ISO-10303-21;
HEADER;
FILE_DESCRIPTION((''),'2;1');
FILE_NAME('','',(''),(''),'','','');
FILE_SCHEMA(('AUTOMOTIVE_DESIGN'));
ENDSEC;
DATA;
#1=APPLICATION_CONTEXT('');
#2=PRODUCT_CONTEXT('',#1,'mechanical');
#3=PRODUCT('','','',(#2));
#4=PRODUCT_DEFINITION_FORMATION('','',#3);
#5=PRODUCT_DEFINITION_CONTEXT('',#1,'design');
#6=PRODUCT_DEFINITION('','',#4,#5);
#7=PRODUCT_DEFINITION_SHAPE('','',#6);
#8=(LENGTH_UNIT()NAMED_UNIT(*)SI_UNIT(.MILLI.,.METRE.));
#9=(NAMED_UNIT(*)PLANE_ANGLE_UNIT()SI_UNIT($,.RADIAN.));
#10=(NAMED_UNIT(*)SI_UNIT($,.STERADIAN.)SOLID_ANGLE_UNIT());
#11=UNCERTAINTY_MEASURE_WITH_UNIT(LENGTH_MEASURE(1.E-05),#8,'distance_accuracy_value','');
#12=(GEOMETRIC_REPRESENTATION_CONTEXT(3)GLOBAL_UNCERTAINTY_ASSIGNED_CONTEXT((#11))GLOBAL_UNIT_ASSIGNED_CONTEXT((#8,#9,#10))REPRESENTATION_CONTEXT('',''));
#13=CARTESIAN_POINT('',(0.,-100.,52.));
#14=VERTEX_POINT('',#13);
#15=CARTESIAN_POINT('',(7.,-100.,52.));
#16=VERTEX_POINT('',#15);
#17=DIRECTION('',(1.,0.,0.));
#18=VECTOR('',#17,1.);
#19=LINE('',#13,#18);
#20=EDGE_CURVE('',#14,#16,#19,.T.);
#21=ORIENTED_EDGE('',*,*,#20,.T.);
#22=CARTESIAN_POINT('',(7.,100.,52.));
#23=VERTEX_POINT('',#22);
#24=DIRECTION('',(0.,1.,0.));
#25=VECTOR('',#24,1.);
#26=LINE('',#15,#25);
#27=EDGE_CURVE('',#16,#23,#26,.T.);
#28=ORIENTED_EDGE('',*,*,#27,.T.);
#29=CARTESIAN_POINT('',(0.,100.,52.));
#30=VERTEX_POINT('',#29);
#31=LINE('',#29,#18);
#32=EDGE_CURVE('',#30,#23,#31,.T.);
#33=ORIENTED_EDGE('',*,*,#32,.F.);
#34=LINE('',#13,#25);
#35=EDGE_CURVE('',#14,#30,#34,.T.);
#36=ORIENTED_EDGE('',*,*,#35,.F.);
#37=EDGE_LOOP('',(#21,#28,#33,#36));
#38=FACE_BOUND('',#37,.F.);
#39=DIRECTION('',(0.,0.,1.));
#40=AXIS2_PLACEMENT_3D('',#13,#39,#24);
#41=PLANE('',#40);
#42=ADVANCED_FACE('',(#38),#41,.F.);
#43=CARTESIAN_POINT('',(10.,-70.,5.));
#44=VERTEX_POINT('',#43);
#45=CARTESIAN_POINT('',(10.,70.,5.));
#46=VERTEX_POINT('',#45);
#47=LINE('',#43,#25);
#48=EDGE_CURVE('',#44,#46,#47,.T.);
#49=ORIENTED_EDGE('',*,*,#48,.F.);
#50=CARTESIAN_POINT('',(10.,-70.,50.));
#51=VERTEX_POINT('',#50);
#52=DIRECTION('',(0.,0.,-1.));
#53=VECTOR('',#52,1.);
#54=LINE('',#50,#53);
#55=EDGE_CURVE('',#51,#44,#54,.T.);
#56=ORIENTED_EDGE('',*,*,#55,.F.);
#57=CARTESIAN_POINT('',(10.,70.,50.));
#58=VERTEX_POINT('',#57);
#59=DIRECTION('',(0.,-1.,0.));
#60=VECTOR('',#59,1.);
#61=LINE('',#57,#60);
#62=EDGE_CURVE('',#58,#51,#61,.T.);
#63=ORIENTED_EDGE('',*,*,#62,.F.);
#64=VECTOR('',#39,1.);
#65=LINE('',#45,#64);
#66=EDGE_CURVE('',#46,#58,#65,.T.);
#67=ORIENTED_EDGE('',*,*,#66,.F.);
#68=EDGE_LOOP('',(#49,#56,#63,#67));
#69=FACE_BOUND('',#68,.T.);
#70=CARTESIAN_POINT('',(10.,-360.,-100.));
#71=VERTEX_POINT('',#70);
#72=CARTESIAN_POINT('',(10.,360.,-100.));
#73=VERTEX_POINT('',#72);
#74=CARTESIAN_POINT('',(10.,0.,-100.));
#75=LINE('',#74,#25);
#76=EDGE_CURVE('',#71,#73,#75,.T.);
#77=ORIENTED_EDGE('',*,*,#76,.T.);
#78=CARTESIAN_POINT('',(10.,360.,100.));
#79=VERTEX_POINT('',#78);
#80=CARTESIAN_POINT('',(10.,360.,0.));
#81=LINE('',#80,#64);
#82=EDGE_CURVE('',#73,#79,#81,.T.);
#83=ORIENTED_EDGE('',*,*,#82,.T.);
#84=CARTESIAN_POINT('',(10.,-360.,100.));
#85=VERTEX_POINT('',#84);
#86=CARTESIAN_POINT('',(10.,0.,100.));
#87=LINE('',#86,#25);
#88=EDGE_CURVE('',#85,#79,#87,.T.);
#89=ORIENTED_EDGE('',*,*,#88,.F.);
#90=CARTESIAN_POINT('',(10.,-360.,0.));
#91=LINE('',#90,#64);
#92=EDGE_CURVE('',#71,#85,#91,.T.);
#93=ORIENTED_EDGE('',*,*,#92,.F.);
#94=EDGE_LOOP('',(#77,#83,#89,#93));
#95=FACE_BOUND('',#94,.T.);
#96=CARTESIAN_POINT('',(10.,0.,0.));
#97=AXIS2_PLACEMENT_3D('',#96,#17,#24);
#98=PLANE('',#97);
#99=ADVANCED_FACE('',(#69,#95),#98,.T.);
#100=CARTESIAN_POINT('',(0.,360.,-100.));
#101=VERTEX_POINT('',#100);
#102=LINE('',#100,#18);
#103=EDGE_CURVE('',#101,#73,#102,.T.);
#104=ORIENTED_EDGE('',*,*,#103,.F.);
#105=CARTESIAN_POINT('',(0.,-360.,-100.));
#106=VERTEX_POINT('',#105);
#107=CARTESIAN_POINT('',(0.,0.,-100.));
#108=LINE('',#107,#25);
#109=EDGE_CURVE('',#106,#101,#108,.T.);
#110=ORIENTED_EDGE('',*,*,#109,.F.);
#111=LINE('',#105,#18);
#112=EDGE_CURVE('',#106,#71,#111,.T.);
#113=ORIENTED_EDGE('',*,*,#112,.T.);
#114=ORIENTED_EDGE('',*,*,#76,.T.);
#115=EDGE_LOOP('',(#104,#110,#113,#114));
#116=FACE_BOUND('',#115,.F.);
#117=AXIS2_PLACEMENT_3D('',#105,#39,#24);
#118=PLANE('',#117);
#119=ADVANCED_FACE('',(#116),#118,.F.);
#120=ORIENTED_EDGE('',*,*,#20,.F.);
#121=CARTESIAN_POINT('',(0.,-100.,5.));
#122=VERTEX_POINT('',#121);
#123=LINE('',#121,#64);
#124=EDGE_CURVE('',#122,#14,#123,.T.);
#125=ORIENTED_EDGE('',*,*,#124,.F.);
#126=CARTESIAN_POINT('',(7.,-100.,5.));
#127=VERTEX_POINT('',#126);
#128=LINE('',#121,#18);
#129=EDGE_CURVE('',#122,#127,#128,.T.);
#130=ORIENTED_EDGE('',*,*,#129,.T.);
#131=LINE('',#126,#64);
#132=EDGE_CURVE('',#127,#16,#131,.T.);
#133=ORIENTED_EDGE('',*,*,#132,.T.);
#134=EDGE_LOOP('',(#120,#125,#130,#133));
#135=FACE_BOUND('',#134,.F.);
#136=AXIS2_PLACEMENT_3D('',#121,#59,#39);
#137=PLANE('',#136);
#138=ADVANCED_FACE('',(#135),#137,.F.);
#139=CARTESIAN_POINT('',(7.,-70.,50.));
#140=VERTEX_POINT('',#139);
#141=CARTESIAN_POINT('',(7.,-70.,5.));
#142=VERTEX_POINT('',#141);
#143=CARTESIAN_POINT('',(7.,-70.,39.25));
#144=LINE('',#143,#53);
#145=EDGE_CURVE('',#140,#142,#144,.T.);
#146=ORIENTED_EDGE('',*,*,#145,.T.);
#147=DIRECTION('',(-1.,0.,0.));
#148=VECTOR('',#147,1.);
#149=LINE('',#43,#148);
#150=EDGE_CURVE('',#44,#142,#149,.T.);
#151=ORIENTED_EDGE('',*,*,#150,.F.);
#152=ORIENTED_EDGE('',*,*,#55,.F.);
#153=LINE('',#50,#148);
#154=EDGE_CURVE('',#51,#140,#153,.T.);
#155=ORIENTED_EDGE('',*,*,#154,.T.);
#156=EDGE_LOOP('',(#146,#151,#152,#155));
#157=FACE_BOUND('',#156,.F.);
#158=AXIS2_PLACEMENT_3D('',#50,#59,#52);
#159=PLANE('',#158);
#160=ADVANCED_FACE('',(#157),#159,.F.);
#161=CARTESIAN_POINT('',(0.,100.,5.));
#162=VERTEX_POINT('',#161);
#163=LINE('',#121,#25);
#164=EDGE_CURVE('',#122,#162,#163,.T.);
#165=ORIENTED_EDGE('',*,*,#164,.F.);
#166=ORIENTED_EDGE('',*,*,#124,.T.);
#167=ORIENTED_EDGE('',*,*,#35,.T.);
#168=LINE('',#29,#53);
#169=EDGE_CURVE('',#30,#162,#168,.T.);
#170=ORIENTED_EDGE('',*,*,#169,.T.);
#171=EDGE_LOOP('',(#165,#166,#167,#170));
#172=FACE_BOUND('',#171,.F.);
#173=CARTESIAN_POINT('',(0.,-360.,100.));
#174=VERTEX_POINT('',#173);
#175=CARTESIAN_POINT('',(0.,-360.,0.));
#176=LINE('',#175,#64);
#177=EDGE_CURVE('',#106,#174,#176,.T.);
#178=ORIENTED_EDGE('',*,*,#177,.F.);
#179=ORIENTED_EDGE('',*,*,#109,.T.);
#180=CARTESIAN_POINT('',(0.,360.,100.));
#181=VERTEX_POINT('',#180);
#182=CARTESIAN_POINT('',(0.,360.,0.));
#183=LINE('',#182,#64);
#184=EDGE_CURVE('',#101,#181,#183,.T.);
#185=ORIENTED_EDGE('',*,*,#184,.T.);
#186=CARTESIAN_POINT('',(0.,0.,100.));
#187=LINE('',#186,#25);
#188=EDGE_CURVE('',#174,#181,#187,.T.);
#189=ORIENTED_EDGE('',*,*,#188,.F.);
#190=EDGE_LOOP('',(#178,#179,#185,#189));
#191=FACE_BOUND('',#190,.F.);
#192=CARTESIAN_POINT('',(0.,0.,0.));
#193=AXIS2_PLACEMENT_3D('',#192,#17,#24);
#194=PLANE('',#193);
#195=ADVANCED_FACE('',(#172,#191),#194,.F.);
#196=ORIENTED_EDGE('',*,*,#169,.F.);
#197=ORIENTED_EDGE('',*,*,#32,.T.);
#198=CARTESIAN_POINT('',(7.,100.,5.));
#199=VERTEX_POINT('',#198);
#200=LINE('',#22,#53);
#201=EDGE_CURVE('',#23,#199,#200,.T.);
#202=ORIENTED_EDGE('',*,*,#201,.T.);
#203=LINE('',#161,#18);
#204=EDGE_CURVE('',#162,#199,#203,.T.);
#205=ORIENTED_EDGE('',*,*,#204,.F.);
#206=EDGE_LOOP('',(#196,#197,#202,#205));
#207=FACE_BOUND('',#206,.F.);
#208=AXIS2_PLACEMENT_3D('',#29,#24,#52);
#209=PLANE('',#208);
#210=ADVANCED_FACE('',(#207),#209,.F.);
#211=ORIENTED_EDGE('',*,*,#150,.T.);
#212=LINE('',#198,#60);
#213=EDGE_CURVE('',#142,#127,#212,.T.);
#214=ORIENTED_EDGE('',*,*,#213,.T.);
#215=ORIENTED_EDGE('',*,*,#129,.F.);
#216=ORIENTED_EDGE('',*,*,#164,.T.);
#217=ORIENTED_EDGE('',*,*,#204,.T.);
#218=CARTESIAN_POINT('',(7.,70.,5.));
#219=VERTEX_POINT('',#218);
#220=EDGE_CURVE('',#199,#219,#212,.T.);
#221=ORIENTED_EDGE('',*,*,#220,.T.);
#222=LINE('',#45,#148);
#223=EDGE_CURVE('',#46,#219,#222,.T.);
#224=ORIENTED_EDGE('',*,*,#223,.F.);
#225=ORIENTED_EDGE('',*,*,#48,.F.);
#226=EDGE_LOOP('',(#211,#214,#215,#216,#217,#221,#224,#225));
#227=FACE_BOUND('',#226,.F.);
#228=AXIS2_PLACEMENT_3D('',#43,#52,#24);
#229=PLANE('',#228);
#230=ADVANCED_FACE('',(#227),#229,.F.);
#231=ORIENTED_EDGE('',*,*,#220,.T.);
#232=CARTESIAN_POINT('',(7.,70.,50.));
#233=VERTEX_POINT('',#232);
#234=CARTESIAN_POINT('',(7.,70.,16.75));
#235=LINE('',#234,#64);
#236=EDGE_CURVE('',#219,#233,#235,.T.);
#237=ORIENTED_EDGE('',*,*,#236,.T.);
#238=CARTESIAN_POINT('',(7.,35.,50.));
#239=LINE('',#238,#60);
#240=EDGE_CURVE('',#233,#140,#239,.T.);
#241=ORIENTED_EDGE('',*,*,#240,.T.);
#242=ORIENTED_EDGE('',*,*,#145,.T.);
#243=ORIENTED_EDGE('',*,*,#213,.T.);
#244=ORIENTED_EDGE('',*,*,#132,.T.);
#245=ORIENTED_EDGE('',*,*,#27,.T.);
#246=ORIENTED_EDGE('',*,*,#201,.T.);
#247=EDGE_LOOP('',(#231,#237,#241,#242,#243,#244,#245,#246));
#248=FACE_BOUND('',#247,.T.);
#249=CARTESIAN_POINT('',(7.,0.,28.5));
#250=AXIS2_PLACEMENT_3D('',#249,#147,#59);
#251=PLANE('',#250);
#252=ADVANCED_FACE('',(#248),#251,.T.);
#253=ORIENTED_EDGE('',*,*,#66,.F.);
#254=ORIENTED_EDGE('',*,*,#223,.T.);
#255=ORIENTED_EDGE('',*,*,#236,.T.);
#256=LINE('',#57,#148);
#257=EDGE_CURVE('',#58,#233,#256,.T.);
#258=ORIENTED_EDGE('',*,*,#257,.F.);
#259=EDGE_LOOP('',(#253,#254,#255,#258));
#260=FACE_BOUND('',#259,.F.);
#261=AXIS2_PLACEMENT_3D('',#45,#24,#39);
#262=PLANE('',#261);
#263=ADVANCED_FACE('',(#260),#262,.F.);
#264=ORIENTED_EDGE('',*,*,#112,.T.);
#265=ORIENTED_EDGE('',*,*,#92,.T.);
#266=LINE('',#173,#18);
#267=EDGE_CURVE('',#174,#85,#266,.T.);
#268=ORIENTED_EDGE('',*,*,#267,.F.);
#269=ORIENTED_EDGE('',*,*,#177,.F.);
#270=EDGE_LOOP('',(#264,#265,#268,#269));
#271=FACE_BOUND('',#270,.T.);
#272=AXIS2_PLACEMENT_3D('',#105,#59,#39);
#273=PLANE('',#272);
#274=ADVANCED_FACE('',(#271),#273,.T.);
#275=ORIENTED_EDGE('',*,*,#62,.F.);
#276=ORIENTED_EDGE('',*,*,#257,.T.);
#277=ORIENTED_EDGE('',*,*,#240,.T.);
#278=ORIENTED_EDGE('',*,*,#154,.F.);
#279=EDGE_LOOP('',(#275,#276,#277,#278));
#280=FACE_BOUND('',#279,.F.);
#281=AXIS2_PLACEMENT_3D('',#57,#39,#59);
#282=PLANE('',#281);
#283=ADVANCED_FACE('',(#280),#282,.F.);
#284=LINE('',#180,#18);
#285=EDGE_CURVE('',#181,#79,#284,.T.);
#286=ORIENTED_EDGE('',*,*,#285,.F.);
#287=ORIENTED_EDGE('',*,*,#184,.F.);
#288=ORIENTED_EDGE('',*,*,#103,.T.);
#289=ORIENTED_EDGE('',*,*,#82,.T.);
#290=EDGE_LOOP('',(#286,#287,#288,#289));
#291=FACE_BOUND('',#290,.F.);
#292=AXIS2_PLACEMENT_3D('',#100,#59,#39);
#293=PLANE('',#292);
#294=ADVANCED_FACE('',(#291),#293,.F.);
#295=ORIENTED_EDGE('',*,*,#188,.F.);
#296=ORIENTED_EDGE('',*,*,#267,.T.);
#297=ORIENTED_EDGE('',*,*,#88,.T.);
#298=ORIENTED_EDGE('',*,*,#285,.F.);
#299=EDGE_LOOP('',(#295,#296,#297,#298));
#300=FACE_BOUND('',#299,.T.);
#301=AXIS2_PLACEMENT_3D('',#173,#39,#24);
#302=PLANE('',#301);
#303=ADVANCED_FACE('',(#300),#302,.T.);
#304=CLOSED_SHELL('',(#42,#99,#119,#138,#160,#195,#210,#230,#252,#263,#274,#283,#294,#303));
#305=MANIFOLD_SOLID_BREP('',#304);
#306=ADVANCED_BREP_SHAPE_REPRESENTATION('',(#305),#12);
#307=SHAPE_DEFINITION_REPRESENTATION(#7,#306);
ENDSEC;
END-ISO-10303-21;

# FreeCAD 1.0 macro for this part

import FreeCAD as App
import Part
import Sketcher

V = App.Vector

doc = App.newDocument("Part")
body = doc.addObject("PartDesign::Body", "Body")

sketch1 = doc.addObject("Sketcher::SketchObject", "Sketch")
body.addObject(sketch1)
sketch1.AttachmentSupport = (doc.YZ_Plane, [""])
sketch1.MapMode = "FlatFace"
sketch1.addGeometry([
    Part.LineSegment(V(-360, 100, 0), V(-360, -100, 0)),
    Part.LineSegment(V(-360, -100, 0), V(360, -100, 0)),
    Part.LineSegment(V(360, -100, 0), V(360, 100, 0)),
    Part.LineSegment(V(360, 100, 0), V(-360, 100, 0)),
], False)
sketch1.addConstraint([
    Sketcher.Constraint("Coincident", 0, 2, 1, 1),
    Sketcher.Constraint("Coincident", 1, 2, 2, 1),
    Sketcher.Constraint("Coincident", 2, 2, 3, 1),
    Sketcher.Constraint("Coincident", 3, 2, 0, 1),
    Sketcher.Constraint("Vertical", 0),
    Sketcher.Constraint("Horizontal", 1),
    Sketcher.Constraint("Vertical", 2),
    Sketcher.Constraint("Horizontal", 3),
    Sketcher.Constraint("Symmetric", 0, 2, 2, 2, -1, 1),
    Sketcher.Constraint("DistanceX", 1, 1, 1, 2, 720.0),
    Sketcher.Constraint("DistanceY", 0, 2, 0, 1, 200.0),
])
pad1 = doc.addObject("PartDesign::Pad", "Pad")
body.addObject(pad1)
pad1.Profile = sketch1
pad1.Length = 10

sketch2 = doc.addObject("Sketcher::SketchObject", "Sketch001")
body.addObject(sketch2)
sketch2.AttachmentSupport = (doc.YZ_Plane, [""])
sketch2.MapMode = "FlatFace"
sketch2.AttachmentOffset = App.Placement(V(0, 0, 10), App.Rotation())
sketch2.addGeometry([
    Part.LineSegment(V(-70, 5, 0), V(70, 5, 0)),
    Part.LineSegment(V(70, 5, 0), V(70, 50, 0)),
    Part.LineSegment(V(70, 50, 0), V(-70, 50, 0)),
    Part.LineSegment(V(-70, 50, 0), V(-70, 5, 0)),
], False)
sketch2.addConstraint([
    Sketcher.Constraint("Coincident", 0, 2, 1, 1),
    Sketcher.Constraint("Coincident", 1, 2, 2, 1),
    Sketcher.Constraint("Coincident", 2, 2, 3, 1),
    Sketcher.Constraint("Coincident", 3, 2, 0, 1),
    Sketcher.Constraint("Horizontal", 0),
    Sketcher.Constraint("Vertical", 1),
    Sketcher.Constraint("Horizontal", 2),
    Sketcher.Constraint("Vertical", 3),
    Sketcher.Constraint("DistanceX", 0, 1, 0, 2, 140.0),
    Sketcher.Constraint("DistanceY", 1, 1, 1, 2, 45.0),
    Sketcher.Constraint("DistanceX", -1, 1, 0, 2, 70.0),
    Sketcher.Constraint("DistanceY", -1, 1, 0, 2, 5.0),
])
pocket1 = doc.addObject("PartDesign::Pocket", "Pocket")
body.addObject(pocket1)
pocket1.Profile = sketch2
pocket1.Length = 25

sketch3 = doc.addObject("Sketcher::SketchObject", "Sketch002")
body.addObject(sketch3)
sketch3.AttachmentSupport = (doc.YZ_Plane, [""])
sketch3.MapMode = "FlatFace"
sketch3.addGeometry([
    Part.LineSegment(V(100, 5, 0), V(-100, 5, 0)),
    Part.LineSegment(V(-100, 5, 0), V(-100, 52, 0)),
    Part.LineSegment(V(-100, 52, 0), V(100, 52, 0)),
    Part.LineSegment(V(100, 52, 0), V(100, 5, 0)),
], False)
sketch3.addConstraint([
    Sketcher.Constraint("Coincident", 0, 2, 1, 1),
    Sketcher.Constraint("Coincident", 1, 2, 2, 1),
    Sketcher.Constraint("Coincident", 2, 2, 3, 1),
    Sketcher.Constraint("Coincident", 3, 2, 0, 1),
    Sketcher.Constraint("Horizontal", 0),
    Sketcher.Constraint("Vertical", 1),
    Sketcher.Constraint("Horizontal", 2),
    Sketcher.Constraint("Vertical", 3),
    Sketcher.Constraint("DistanceX", 0, 2, 0, 1, 200.0),
    Sketcher.Constraint("DistanceY", 1, 1, 1, 2, 47.0),
    Sketcher.Constraint("DistanceX", 0, 2, -1, 1, 100.0),
    Sketcher.Constraint("DistanceY", -1, 1, 0, 2, 5.0),
])
pocket2 = doc.addObject("PartDesign::Pocket", "Pocket001")
body.addObject(pocket2)
pocket2.Profile = sketch3
pocket2.Length = 7
pocket2.Reversed = True

doc.recompute()
